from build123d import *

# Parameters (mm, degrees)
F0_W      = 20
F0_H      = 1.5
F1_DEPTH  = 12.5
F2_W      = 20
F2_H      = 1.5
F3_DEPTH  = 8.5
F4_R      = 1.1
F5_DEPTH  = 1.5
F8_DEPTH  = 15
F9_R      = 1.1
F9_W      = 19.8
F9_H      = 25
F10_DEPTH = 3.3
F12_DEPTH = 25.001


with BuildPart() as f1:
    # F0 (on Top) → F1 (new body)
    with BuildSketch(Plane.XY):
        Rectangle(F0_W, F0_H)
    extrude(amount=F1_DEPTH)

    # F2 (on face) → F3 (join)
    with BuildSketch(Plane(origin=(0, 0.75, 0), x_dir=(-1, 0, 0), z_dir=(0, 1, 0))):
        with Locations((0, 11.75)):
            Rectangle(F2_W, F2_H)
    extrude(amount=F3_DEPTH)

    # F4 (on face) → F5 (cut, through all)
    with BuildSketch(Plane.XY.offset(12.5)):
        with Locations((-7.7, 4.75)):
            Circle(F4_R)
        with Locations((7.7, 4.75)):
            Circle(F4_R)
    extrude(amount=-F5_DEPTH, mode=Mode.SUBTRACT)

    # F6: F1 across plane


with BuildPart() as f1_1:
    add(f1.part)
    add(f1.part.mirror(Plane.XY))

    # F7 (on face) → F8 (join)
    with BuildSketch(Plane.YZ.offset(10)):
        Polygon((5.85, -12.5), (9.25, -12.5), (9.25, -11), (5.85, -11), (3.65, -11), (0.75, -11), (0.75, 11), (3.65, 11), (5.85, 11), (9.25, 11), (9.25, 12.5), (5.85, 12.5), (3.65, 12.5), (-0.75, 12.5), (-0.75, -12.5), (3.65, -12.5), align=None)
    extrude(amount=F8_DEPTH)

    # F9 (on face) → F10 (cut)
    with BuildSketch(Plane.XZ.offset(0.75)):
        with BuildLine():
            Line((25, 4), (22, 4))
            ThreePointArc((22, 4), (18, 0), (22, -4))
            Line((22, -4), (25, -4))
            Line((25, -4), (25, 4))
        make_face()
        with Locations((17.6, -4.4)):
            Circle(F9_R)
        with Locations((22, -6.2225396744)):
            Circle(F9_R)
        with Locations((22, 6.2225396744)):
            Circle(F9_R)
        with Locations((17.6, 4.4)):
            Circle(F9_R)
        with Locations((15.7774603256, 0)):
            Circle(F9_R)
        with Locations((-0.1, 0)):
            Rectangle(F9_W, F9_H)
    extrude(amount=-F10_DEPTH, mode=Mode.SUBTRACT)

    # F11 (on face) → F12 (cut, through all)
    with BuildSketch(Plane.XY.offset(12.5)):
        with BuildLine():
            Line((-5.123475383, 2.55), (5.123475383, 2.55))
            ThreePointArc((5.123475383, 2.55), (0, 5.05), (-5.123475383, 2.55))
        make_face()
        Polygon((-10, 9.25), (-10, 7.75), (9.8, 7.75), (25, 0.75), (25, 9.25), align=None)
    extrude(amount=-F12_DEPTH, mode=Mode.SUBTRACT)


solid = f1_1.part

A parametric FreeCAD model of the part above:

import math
import FreeCAD as App
import Part
import Sketcher
from FreeCAD import Vector

doc = App.newDocument("Part")
params = doc.addObject("Spreadsheet::Sheet", "Params")
for row, (alias, value) in enumerate([
    ("sketch1_width", "20 mm"),
    ("sketch1_height", "1.5 mm"),
    ("pad1_length", "12.5 mm"),
    ("sketch2_width", "20 mm"),
    ("sketch2_height", "1.5 mm"),
    ("pad2_length", "8.5 mm"),
    ("sketch3_diameter", "2.2 mm"),
    ("sketch4_width", "10 mm"),
    ("sketch4_height", "22 mm"),
    ("sketch4_height2", "25 mm"),
    ("sketch4_width2", "8.5 mm"),
    ("pad3_length", "15 mm"),
    ("sketch5_radius", "4 mm"),
    ("sketch5_diameter", "2.2 mm"),
    ("sketch5_width", "3 mm"),
    ("sketch5_height", "25 mm"),
    ("sketch5_width2", "19.8 mm"),
    ("pocket2_length", "3.3 mm"),
    ("sketch6_radius", "6.5 mm"),
    ("sketch6_width", "35 mm"),
    ("sketch6_width2", "19.8 mm"),
    ("sketch6_height", "1.5 mm"),
    ("sketch6_height2", "8.5 mm"),
], start=1):
    params.set(f"A{row}", alias)
    params.set(f"B{row}", "=" + value)
    params.setAlias(f"B{row}", alias)

body = doc.addObject("PartDesign::Body", "Body")

# Sketch on XY plane
sketch1 = body.newObject("Sketcher::SketchObject", "Sketch")
sketch1.AttachmentSupport = (doc.getObject("XY_Plane"), [""])
sketch1.MapMode = "FlatFace"
sketch1.addGeometry([
    Part.LineSegment(Vector(-10, 0.8, 0), Vector(-10, -0.8, 0)),
    Part.LineSegment(Vector(-10, -0.8, 0), Vector(10, -0.8, 0)),
    Part.LineSegment(Vector(10, -0.8, 0), Vector(10, 0.8, 0)),
    Part.LineSegment(Vector(10, 0.8, 0), Vector(-10, 0.8, 0)),
], False)
sketch1.addConstraint([
    Sketcher.Constraint("Coincident", 0, 2, 1, 1),
    Sketcher.Constraint("Coincident", 1, 2, 2, 1),
    Sketcher.Constraint("Coincident", 2, 2, 3, 1),
    Sketcher.Constraint("Coincident", 3, 2, 0, 1),
    Sketcher.Constraint("Vertical", 0),
    Sketcher.Constraint("Horizontal", 1),
    Sketcher.Constraint("Vertical", 2),
    Sketcher.Constraint("Horizontal", 3),
    Sketcher.Constraint("Symmetric", 0, 2, 2, 2, -1, 1),
    Sketcher.Constraint("DistanceX", 1, 1, 1, 2, 20.0),
    Sketcher.Constraint("DistanceY", 0, 2, 0, 1, 1.5),
])
sketch1.setExpression("Constraints[9]", "Params.sketch1_width")
sketch1.setExpression("Constraints[10]", "Params.sketch1_height")
pad1 = body.newObject("PartDesign::Pad", "Pad")
pad1.Profile = sketch1
pad1.setExpression("Length", "Params.pad1_length")

# Sketch on XZ plane
sketch2 = body.newObject("Sketcher::SketchObject", "Sketch001")
sketch2.AttachmentSupport = (doc.getObject("XZ_Plane"), [""])
sketch2.MapMode = "FlatFace"
sketch2.AttachmentOffset = App.Placement(Vector(0, 0, -0.75), App.Rotation())
sketch2.addGeometry([
    Part.LineSegment(Vector(10, 12.5, 0), Vector(10, 11, 0)),
    Part.LineSegment(Vector(10, 11, 0), Vector(-10, 11, 0)),
    Part.LineSegment(Vector(-10, 11, 0), Vector(-10, 12.5, 0)),
    Part.LineSegment(Vector(-10, 12.5, 0), Vector(10, 12.5, 0)),
], False)
sketch2.addConstraint([
    Sketcher.Constraint("Coincident", 0, 2, 1, 1),
    Sketcher.Constraint("Coincident", 1, 2, 2, 1),
    Sketcher.Constraint("Coincident", 2, 2, 3, 1),
    Sketcher.Constraint("Coincident", 3, 2, 0, 1),
    Sketcher.Constraint("Vertical", 0),
    Sketcher.Constraint("Horizontal", 1),
    Sketcher.Constraint("Vertical", 2),
    Sketcher.Constraint("Horizontal", 3),
    Sketcher.Constraint("DistanceX", 1, 2, 1, 1, 20.0),
    Sketcher.Constraint("DistanceY", 0, 2, 0, 1, 1.5),
    Sketcher.Constraint("DistanceX", -1, 1, 0, 2, 10.0),
    Sketcher.Constraint("DistanceY", -1, 1, 0, 2, 11.0),
])
sketch2.setExpression("Constraints[8]", "Params.sketch2_width")
sketch2.setExpression("Constraints[9]", "Params.sketch2_height")
pad2 = body.newObject("PartDesign::Pad", "Pad001")
pad2.Profile = sketch2
pad2.setExpression("Length", "Params.pad2_length")
pad2.Reversed = True

# Sketch on XY plane
sketch3 = body.newObject("Sketcher::SketchObject", "Sketch002")
sketch3.AttachmentSupport = (doc.getObject("XY_Plane"), [""])
sketch3.MapMode = "FlatFace"
sketch3.AttachmentOffset = App.Placement(Vector(0, 0, 12.5), App.Rotation())
sketch3.addGeometry([
    Part.Circle(Vector(-7.7, 4.8, 0), Vector(0, 0, 1), 1.1),
    Part.Circle(Vector(7.7, 4.8, 0), Vector(0, 0, 1), 1.1),
], False)
sketch3.addConstraint([
    Sketcher.Constraint("Equal", 0, 1),
    Sketcher.Constraint("Symmetric", 0, 3, 1, 3, -2),
    Sketcher.Constraint("Diameter", 0, 2.2),
    Sketcher.Constraint("DistanceX", 0, 3, -1, 1, 7.7),
    Sketcher.Constraint("DistanceY", -1, 1, 0, 3, 4.75),
])
sketch3.setExpression("Constraints[2]", "Params.sketch3_diameter")
pocket1 = body.newObject("PartDesign::Pocket", "Pocket")
pocket1.Profile = sketch3
pocket1.Type = "ThroughAll"
body2 = doc.addObject("PartDesign::Body", "Body001")
doc.recompute()

body2.BaseFeature = body
doc.recompute()

mirroring = doc.addObject("Part::Mirroring", "Mirroring")
mirroring.Source = body
mirroring.Base = Vector(0, 0, 0)
mirroring.Normal = Vector(0, 0, 1)
body3 = doc.addObject("PartDesign::Body", "Body002")
body3.BaseFeature = mirroring
boolean = body2.newObject("PartDesign::Boolean", "Boolean")
boolean.Type = "Fuse"
boolean.addObjects([body3])
doc.recompute()

# Sketch on YZ plane
sketch4 = body2.newObject("Sketcher::SketchObject", "Sketch003")
sketch4.AttachmentSupport = (doc.getObject("YZ_Plane001"), [""])
sketch4.MapMode = "FlatFace"
sketch4.AttachmentOffset = App.Placement(Vector(0, 0, 10), App.Rotation())
sketch4.addGeometry([
    Part.LineSegment(Vector(9.2, -12.5, 0), Vector(9.2, -11, 0)),  # 0
    Part.LineSegment(Vector(9.2, -11, 0), Vector(0.8, -11, 0)),  # 1
    Part.LineSegment(Vector(0.8, -11, 0), Vector(0.8, 11, 0)),  # 2
    Part.LineSegment(Vector(0.8, 11, 0), Vector(9.2, 11, 0)),  # 3
    Part.LineSegment(Vector(9.2, 11, 0), Vector(9.2, 12.5, 0)),  # 4
    Part.LineSegment(Vector(9.2, 12.5, 0), Vector(-0.8, 12.5, 0)),  # 5
    Part.LineSegment(Vector(-0.8, 12.5, 0), Vector(-0.8, -12.5, 0)),  # 6
    Part.LineSegment(Vector(-0.8, -12.5, 0), Vector(9.2, -12.5, 0)),  # 7
], False)
sketch4.addConstraint([
    Sketcher.Constraint("Coincident", 0, 2, 1, 1),
    Sketcher.Constraint("Coincident", 1, 2, 2, 1),
    Sketcher.Constraint("Coincident", 2, 2, 3, 1),
    Sketcher.Constraint("Coincident", 3, 2, 4, 1),
    Sketcher.Constraint("Coincident", 4, 2, 5, 1),
    Sketcher.Constraint("Coincident", 5, 2, 6, 1),
    Sketcher.Constraint("Coincident", 6, 2, 7, 1),
    Sketcher.Constraint("Coincident", 7, 2, 0, 1),
    Sketcher.Constraint("Vertical", 0),
    Sketcher.Constraint("Horizontal", 1),
    Sketcher.Constraint("Vertical", 2),
    Sketcher.Constraint("Horizontal", 3),
    Sketcher.Constraint("Vertical", 4),
    Sketcher.Constraint("Horizontal", 5),
    Sketcher.Constraint("Vertical", 6),
    Sketcher.Constraint("Horizontal", 7),
    Sketcher.Constraint("Symmetric", 0, 2, 3, 2, -1),
    Sketcher.Constraint("Equal", 0, 4),
    Sketcher.Constraint("DistanceX", 5, 2, 5, 1, 10.0),
    Sketcher.Constraint("DistanceY", 2, 1, 2, 2, 22.0),
    Sketcher.Constraint("DistanceY", 6, 2, 6, 1, 25.0),
    Sketcher.Constraint("DistanceX", 1, 2, 1, 1, 8.5),
    Sketcher.Constraint("DistanceX", -1, 1, 0, 2, 9.25),
])
sketch4.setExpression("Constraints[18]", "Params.sketch4_width")
sketch4.setExpression("Constraints[19]", "Params.sketch4_height")
sketch4.setExpression("Constraints[20]", "Params.sketch4_height2")
sketch4.setExpression("Constraints[21]", "Params.sketch4_width2")
pad3 = body2.newObject("PartDesign::Pad", "Pad002")
pad3.Profile = sketch4
pad3.setExpression("Length", "Params.pad3_length")

# Sketch on XZ plane
sketch5 = body2.newObject("Sketcher::SketchObject", "Sketch004")
sketch5.AttachmentSupport = (doc.getObject("XZ_Plane001"), [""])
sketch5.MapMode = "FlatFace"
sketch5.AttachmentOffset = App.Placement(Vector(0, 0, 0.75), App.Rotation())
sketch5.addGeometry([
    Part.LineSegment(Vector(25, 4, 0), Vector(22, 4, 0)),  # 0
    Part.ArcOfCircle(Part.Circle(Vector(22, 0, 0), Vector(0, 0, 1), 4), math.radians(90), math.radians(270)),  # 1
    Part.LineSegment(Vector(22, -4, 0), Vector(25, -4, 0)),  # 2
    Part.LineSegment(Vector(25, -4, 0), Vector(25, 4, 0)),  # 3
    Part.Circle(Vector(17.6, -4.4, 0), Vector(0, 0, 1), 1.1),  # 4
    Part.Circle(Vector(22, -6.2, 0), Vector(0, 0, 1), 1.1),  # 5
    Part.Circle(Vector(22, 6.2, 0), Vector(0, 0, 1), 1.1),  # 6
    Part.Circle(Vector(17.6, 4.4, 0), Vector(0, 0, 1), 1.1),  # 7
    Part.Circle(Vector(15.8, 0, 0), Vector(0, 0, 1), 1.1),  # 8
    Part.LineSegment(Vector(-10, 12.5, 0), Vector(-10, -12.5, 0)),  # 9
    Part.LineSegment(Vector(-10, -12.5, 0), Vector(9.8, -12.5, 0)),  # 10
    Part.LineSegment(Vector(9.8, -12.5, 0), Vector(9.8, 12.5, 0)),  # 11
    Part.LineSegment(Vector(9.8, 12.5, 0), Vector(-10, 12.5, 0)),  # 12
], False)
sketch5.addConstraint([
    Sketcher.Constraint("Tangent", 0, 2, 1, 1),
    Sketcher.Constraint("Tangent", 1, 2, 2, 1),
    Sketcher.Constraint("Coincident", 2, 2, 3, 1),
    Sketcher.Constraint("Coincident", 3, 2, 0, 1),
    Sketcher.Constraint("Coincident", 9, 2, 10, 1),
    Sketcher.Constraint("Coincident", 10, 2, 11, 1),
    Sketcher.Constraint("Coincident", 11, 2, 12, 1),
    Sketcher.Constraint("Coincident", 12, 2, 9, 1),
    Sketcher.Constraint("Horizontal", 0),
    Sketcher.Constraint("Horizontal", 2),
    Sketcher.Constraint("Vertical", 3),
    Sketcher.Constraint("Vertical", 9),
    Sketcher.Constraint("Horizontal", 10),
    Sketcher.Constraint("Vertical", 11),
    Sketcher.Constraint("Horizontal", 12),
    Sketcher.Constraint("Equal", 4, 5),
    Sketcher.Constraint("Equal", 5, 6),
    Sketcher.Constraint("Equal", 6, 7),
    Sketcher.Constraint("Equal", 7, 8),
    Sketcher.Constraint("Symmetric", 5, 3, 6, 3, -1),
    Sketcher.Constraint("Symmetric", 4, 3, 7, 3, -1),
    Sketcher.Constraint("PointOnObject", 1, 3, -1),
    Sketcher.Constraint("PointOnObject", 8, 3, -1),
    Sketcher.Constraint("Vertical", 1, 3, 5, 3),
    Sketcher.Constraint("Radius", 1, 4.0),
    Sketcher.Constraint("Diameter", 4, 2.2),
    Sketcher.Constraint("DistanceX", 0, 2, 0, 1, 3.0),
    Sketcher.Constraint("DistanceY", 9, 2, 9, 1, 25.0),
    Sketcher.Constraint("DistanceX", 10, 1, 10, 2, 19.8),
    Sketcher.Constraint("DistanceX", -1, 1, 1, 3, 22.0),
    Sketcher.Constraint("DistanceX", 9, 2, -1, 1, 10.0),
    Sketcher.Constraint("DistanceX", -1, 1, 4, 3, 17.6),
    Sketcher.Constraint("DistanceY", 4, 3, -1, 1, 4.4),
    Sketcher.Constraint("DistanceY", 9, 2, -1, 1, 12.5),
    Sketcher.Constraint("DistanceY", 5, 3, -1, 1, 6.22254),
    Sketcher.Constraint("DistanceX", -1, 1, 8, 3, 15.77746),
])
sketch5.setExpression("Constraints[24]", "Params.sketch5_radius")
sketch5.setExpression("Constraints[25]", "Params.sketch5_diameter")
sketch5.setExpression("Constraints[26]", "Params.sketch5_width")
sketch5.setExpression("Constraints[27]", "Params.sketch5_height")
sketch5.setExpression("Constraints[28]", "Params.sketch5_width2")
pocket2 = body2.newObject("PartDesign::Pocket", "Pocket001")
pocket2.Profile = sketch5
pocket2.setExpression("Length", "Params.pocket2_length")

# Sketch on XY plane
sketch6 = body2.newObject("Sketcher::SketchObject", "Sketch005")
sketch6.AttachmentSupport = (doc.getObject("XY_Plane001"), [""])
sketch6.MapMode = "FlatFace"
sketch6.AttachmentOffset = App.Placement(Vector(0, 0, 12.5), App.Rotation())
sketch6.addGeometry([
    Part.LineSegment(Vector(-5.1, 2.5, 0), Vector(5.1, 2.5, 0)),  # 0
    Part.ArcOfCircle(Part.Circle(Vector(0, -1.4, 0), Vector(0, 0, 1), 6.5), math.radians(38), math.radians(142)),  # 1
    Part.LineSegment(Vector(-10, 9.2, 0), Vector(-10, 7.8, 0)),  # 2
    Part.LineSegment(Vector(-10, 7.8, 0), Vector(9.8, 7.8, 0)),  # 3
    Part.LineSegment(Vector(9.8, 7.8, 0), Vector(25, 0.8, 0)),  # 4
    Part.LineSegment(Vector(25, 0.8, 0), Vector(25, 9.2, 0)),  # 5
    Part.LineSegment(Vector(25, 9.2, 0), Vector(-10, 9.2, 0)),  # 6
], False)
sketch6.addConstraint([
    Sketcher.Constraint("Coincident", 0, 1, 1, 2),
    Sketcher.Constraint("Coincident", 1, 1, 0, 2),
    Sketcher.Constraint("Coincident", 2, 2, 3, 1),
    Sketcher.Constraint("Coincident", 3, 2, 4, 1),
    Sketcher.Constraint("Coincident", 4, 2, 5, 1),
    Sketcher.Constraint("Coincident", 5, 2, 6, 1),
    Sketcher.Constraint("Coincident", 6, 2, 2, 1),
    Sketcher.Constraint("Horizontal", 0),
    Sketcher.Constraint("Vertical", 2),
    Sketcher.Constraint("Horizontal", 3),
    Sketcher.Constraint("Vertical", 5),
    Sketcher.Constraint("Horizontal", 6),
    Sketcher.Constraint("PointOnObject", 1, 3, -2),
    Sketcher.Constraint("Radius", 1, 6.5),
    Sketcher.Constraint("DistanceX", 6, 2, 6, 1, 35.0),
    Sketcher.Constraint("DistanceX", 3, 1, 3, 2, 19.8),
    Sketcher.Constraint("DistanceY", 2, 2, 2, 1, 1.5),
    Sketcher.Constraint("DistanceY", 5, 1, 5, 2, 8.5),
    Sketcher.Constraint("DistanceX", 2, 2, -1, 1, 10.0),
    Sketcher.Constraint("DistanceY", 1, 3, 0, 1, 4.0),
    Sketcher.Constraint("DistanceY", 0, 1, 2, 2, 5.2),
    Sketcher.Constraint("DistanceY", 1, 3, -1, 1, 1.45),
])
sketch6.setExpression("Constraints[13]", "Params.sketch6_radius")
sketch6.setExpression("Constraints[14]", "Params.sketch6_width")
sketch6.setExpression("Constraints[15]", "Params.sketch6_width2")
sketch6.setExpression("Constraints[16]", "Params.sketch6_height")
sketch6.setExpression("Constraints[17]", "Params.sketch6_height2")
pocket3 = body2.newObject("PartDesign::Pocket", "Pocket002")
pocket3.Profile = sketch6
pocket3.Type = "ThroughAll"
mirroring.Visibility = False

doc.recompute()
